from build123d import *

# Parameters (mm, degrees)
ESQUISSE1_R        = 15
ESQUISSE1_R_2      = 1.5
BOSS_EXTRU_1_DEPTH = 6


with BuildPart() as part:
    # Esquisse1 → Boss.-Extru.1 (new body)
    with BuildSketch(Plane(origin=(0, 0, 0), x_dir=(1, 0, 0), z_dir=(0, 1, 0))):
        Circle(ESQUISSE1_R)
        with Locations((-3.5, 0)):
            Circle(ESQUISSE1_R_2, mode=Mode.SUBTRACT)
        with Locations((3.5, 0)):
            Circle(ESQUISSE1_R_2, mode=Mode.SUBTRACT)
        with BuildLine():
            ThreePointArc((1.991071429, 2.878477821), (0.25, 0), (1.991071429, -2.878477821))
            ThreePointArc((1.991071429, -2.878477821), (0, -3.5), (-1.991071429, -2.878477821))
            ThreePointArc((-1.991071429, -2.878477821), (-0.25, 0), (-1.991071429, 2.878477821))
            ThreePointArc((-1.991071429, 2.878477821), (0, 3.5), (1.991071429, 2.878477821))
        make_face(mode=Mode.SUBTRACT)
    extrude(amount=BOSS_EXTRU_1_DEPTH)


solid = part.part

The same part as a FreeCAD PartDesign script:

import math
import FreeCAD as App
import Part
import Sketcher

V = App.Vector

doc = App.newDocument("Part")
body = doc.addObject("PartDesign::Body", "Body")

# Sketch on XZ plane
sketch1 = body.newObject("Sketcher::SketchObject", "Sketch")
sketch1.AttachmentSupport = (doc.getObject("XZ_Plane"), [""])
sketch1.MapMode = "FlatFace"
sketch1.addGeometry([
    Part.Circle(V(0, 0, 0), V(0, 0, 1), 15),  # 0
    Part.Circle(V(-3.5, 0, 0), V(0, 0, 1), 1.5),  # 1
    Part.ArcOfCircle(Part.Circle(V(0, 0, 0), V(0, 0, 1), 3.5), math.radians(-125), math.radians(-55)),  # 2
    Part.ArcOfCircle(Part.Circle(V(3.5, 0, 0), V(0, 0, 1), 3.2), math.radians(118), math.radians(242)),  # 3
    Part.ArcOfCircle(Part.Circle(V(0, 0, 0), V(0, 0, 1), 3.5), math.radians(55), math.radians(125)),  # 4
    Part.ArcOfCircle(Part.Circle(V(-3.5, 0, 0), V(0, 0, 1), 3.2), math.radians(-62), math.radians(62)),  # 5
    Part.Circle(V(3.5, 0, 0), V(0, 0, 1), 1.5),  # 6
], False)
sketch1.addConstraint([
    Sketcher.Constraint("Coincident", 2, 2, 3, 2),
    Sketcher.Constraint("Coincident", 3, 1, 4, 1),
    Sketcher.Constraint("Coincident", 4, 2, 5, 2),
    Sketcher.Constraint("Coincident", 5, 1, 2, 1),
    Sketcher.Constraint("Coincident", 0, 3, -1, 1),
    Sketcher.Constraint("Coincident", 2, 3, -1, 1),
    Sketcher.Constraint("Coincident", 4, 3, -1, 1),
    Sketcher.Constraint("Coincident", 5, 3, 1, 3),
    Sketcher.Constraint("Coincident", 6, 3, 3, 3),
    Sketcher.Constraint("Equal", 2, 4),
    Sketcher.Constraint("Equal", 3, 5),
    Sketcher.Constraint("Equal", 1, 6),
    Sketcher.Constraint("Symmetric", 1, 3, 3, 3, -1, 1),
    Sketcher.Constraint("PointOnObject", 1, 3, -1),
    Sketcher.Constraint("Diameter", 0, 30.0),
    Sketcher.Constraint("Diameter", 1, 3.0),
    Sketcher.Constraint("Radius", 2, 3.5),
    Sketcher.Constraint("Radius", 3, 3.25),
    Sketcher.Constraint("DistanceX", 1, 3, 3, 3, 7.0),
])
pad1 = body.newObject("PartDesign::Pad", "Pad")
pad1.Profile = sketch1
pad1.Length = 6
pad1.Reversed = True

doc.recompute()
